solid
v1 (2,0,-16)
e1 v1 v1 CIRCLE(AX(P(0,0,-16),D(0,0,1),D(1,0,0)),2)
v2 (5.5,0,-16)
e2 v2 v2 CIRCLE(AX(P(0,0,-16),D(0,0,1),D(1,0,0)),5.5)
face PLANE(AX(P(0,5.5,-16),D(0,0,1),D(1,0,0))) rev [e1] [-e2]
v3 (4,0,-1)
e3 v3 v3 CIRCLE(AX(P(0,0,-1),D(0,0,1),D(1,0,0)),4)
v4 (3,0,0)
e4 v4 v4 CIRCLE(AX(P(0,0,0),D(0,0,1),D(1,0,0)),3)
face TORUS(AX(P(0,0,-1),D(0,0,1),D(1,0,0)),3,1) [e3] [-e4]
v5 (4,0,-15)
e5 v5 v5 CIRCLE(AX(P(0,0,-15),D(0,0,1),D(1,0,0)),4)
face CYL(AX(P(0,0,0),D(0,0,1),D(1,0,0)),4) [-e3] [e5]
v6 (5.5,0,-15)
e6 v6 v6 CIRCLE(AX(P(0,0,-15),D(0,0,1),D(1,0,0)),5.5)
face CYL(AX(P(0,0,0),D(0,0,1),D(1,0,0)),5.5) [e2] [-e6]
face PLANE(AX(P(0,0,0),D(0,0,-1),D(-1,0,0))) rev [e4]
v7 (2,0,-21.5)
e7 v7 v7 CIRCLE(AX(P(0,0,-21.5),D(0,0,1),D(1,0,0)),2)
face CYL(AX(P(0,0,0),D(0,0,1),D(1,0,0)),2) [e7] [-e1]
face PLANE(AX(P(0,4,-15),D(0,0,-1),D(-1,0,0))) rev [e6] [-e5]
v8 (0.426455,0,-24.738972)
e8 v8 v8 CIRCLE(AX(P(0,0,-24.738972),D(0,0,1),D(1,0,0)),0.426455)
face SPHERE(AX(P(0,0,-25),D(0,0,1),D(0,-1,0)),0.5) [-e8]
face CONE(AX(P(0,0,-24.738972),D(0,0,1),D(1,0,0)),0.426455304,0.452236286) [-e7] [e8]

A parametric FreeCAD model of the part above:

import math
import FreeCAD as App
import Part
import Sketcher
from FreeCAD import Vector

doc = App.newDocument("Part")
params = doc.addObject("Spreadsheet::Sheet", "Params")
for row, (alias, value) in enumerate([
    ("sketch1_radius", "1 mm"),
    ("sketch1_radius2", "0.5 mm"),
    ("sketch1_width", "3 mm"),
    ("sketch1_height", "1 mm"),
    ("sketch1_height2", "14 mm"),
    ("revolution_angle", "360 deg"),
], start=1):
    params.set(f"A{row}", alias)
    params.set(f"B{row}", "=" + value)
    params.setAlias(f"B{row}", alias)

body = doc.addObject("PartDesign::Body", "Body")

# Sketch on YZ plane
sketch1 = body.newObject("Sketcher::SketchObject", "Sketch")
sketch1.AttachmentSupport = (doc.getObject("YZ_Plane"), [""])
sketch1.MapMode = "FlatFace"
sketch1.addGeometry(Part.LineSegment(Vector(3, 0, 0), Vector(0, 0, 0)), False)
sketch1.addGeometry(Part.LineSegment(Vector(0, 0, 0), Vector(0, -25.5, 0)), False)
sketch1.addGeometry(Part.ArcOfCircle(Part.Circle(Vector(0, -25, 0), Vector(0, 0, 1), 0.5), math.radians(-90), math.radians(31)), False)
sketch1.addGeometry(Part.LineSegment(Vector(0.4, -24.7, 0), Vector(2, -21.5, 0)), False)
sketch1.addGeometry(Part.LineSegment(Vector(2, -21.5, 0), Vector(2, -16, 0)), False)
sketch1.addGeometry(Part.LineSegment(Vector(2, -16, 0), Vector(5.5, -16, 0)), False)
sketch1.addGeometry(Part.LineSegment(Vector(5.5, -16, 0), Vector(5.5, -15, 0)), False)
sketch1.addGeometry(Part.LineSegment(Vector(5.5, -15, 0), Vector(4, -15, 0)), False)
sketch1.addGeometry(Part.LineSegment(Vector(4, -15, 0), Vector(4, -1, 0)), False)
sketch1.addGeometry(Part.ArcOfCircle(Part.Circle(Vector(3, -1, 0), Vector(0, 0, 1), 1), math.radians(0), math.radians(90)), False)
sketch1.addConstraint(Sketcher.Constraint("Coincident", 0, 2, 1, 1))
sketch1.addConstraint(Sketcher.Constraint("Coincident", 1, 2, 2, 1))
sketch1.addConstraint(Sketcher.Constraint("Coincident", 2, 2, 3, 1))
sketch1.addConstraint(Sketcher.Constraint("Coincident", 3, 2, 4, 1))
sketch1.addConstraint(Sketcher.Constraint("Coincident", 4, 2, 5, 1))
sketch1.addConstraint(Sketcher.Constraint("Coincident", 5, 2, 6, 1))
sketch1.addConstraint(Sketcher.Constraint("Coincident", 6, 2, 7, 1))
sketch1.addConstraint(Sketcher.Constraint("Coincident", 7, 2, 8, 1))
sketch1.addConstraint(Sketcher.Constraint("Tangent", 8, 2, 9, 1))
sketch1.addConstraint(Sketcher.Constraint("Tangent", 9, 2, 0, 1))
sketch1.addConstraint(Sketcher.Constraint("Horizontal", 0))
sketch1.addConstraint(Sketcher.Constraint("Vertical", 1))
sketch1.addConstraint(Sketcher.Constraint("Vertical", 4))
sketch1.addConstraint(Sketcher.Constraint("Horizontal", 5))
sketch1.addConstraint(Sketcher.Constraint("Vertical", 6))
sketch1.addConstraint(Sketcher.Constraint("Horizontal", 7))
sketch1.addConstraint(Sketcher.Constraint("Vertical", 8))
sketch1.addConstraint(Sketcher.Constraint("Coincident", 0, 2, -1, 1))
sketch1.addConstraint(Sketcher.Constraint("PointOnObject", 2, 3, -2))
sketch1.addConstraint(Sketcher.Constraint("Radius", 9, 1.0))
sketch1.addConstraint(Sketcher.Constraint("Radius", 2, 0.5))
sketch1.addConstraint(Sketcher.Constraint("DistanceX", 0, 2, 0, 1, 3.0))
sketch1.addConstraint(Sketcher.Constraint("DistanceY", 6, 1, 6, 2, 1.0))
sketch1.addConstraint(Sketcher.Constraint("DistanceY", 8, 1, 8, 2, 14.0))
sketch1.addConstraint(Sketcher.Constraint("DistanceX", 5, 1, 5, 2, 3.5))
sketch1.addConstraint(Sketcher.Constraint("DistanceX", 7, 2, 7, 1, 1.5))
sketch1.addConstraint(Sketcher.Constraint("DistanceY", 1, 2, 1, 1, 25.5))
sketch1.addConstraint(Sketcher.Constraint("DistanceY", 4, 1, 4, 2, 5.5))
sketch1.addConstraint(Sketcher.Constraint("Distance", 3, 3.600969))
sketch1.setExpression("Constraints[19]", "Params.sketch1_radius")
sketch1.setExpression("Constraints[20]", "Params.sketch1_radius2")
sketch1.setExpression("Constraints[21]", "Params.sketch1_width")
sketch1.setExpression("Constraints[22]", "Params.sketch1_height")
sketch1.setExpression("Constraints[23]", "Params.sketch1_height2")
revolution = body.newObject("PartDesign::Revolution", "Revolution")
revolution.Profile = sketch1
revolution.ReferenceAxis = (sketch1, ["V_Axis"])
revolution.setExpression("Angle", "Params.revolution_angle")

doc.recompute()
